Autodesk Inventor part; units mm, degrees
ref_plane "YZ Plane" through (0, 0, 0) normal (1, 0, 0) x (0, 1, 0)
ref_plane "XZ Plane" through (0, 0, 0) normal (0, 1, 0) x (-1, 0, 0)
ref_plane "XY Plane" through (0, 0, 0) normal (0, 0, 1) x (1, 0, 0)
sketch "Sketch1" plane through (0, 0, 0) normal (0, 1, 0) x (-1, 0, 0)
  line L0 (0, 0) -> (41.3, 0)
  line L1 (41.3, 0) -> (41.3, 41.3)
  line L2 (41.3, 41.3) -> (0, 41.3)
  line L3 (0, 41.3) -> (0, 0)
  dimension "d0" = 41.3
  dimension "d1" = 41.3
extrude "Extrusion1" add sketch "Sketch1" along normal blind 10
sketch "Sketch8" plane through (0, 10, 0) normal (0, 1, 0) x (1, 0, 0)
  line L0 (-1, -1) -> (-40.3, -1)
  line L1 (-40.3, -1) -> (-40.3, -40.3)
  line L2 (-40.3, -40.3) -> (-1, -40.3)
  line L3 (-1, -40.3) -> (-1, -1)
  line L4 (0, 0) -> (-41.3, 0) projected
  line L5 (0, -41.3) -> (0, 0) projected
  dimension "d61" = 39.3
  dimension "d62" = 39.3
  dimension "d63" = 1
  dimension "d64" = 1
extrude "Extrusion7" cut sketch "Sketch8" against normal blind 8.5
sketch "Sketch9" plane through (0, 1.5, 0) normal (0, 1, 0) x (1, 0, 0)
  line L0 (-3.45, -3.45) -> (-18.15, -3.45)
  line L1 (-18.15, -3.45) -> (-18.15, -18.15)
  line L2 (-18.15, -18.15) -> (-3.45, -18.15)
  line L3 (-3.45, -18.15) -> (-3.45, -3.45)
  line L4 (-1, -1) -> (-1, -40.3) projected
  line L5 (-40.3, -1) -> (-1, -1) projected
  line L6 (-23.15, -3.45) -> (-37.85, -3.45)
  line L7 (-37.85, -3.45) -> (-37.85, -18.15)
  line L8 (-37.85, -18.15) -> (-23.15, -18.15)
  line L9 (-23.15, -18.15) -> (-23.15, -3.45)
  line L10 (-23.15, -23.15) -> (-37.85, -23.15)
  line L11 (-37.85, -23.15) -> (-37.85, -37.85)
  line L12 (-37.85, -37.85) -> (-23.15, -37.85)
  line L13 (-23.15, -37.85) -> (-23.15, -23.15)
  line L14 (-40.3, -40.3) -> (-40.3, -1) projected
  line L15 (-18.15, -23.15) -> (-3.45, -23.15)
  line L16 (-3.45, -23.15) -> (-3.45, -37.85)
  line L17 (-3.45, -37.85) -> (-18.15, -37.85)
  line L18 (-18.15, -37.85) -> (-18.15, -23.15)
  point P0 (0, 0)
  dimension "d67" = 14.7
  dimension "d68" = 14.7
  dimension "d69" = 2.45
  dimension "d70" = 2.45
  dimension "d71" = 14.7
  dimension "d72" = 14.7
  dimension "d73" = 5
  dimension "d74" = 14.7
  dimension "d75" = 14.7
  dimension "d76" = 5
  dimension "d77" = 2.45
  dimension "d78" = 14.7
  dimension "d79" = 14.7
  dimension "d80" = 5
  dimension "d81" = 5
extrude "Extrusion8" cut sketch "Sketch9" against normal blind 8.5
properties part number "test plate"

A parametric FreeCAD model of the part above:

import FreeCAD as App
import Part
import Sketcher

V = App.Vector
Q = App.Units.Quantity

doc = App.newDocument("Part")
body = doc.addObject("PartDesign::Body", "Body")

# Sketch on XZ plane
sketch1 = body.newObject("Sketcher::SketchObject", "Sketch")
sketch1.AttachmentSupport = (doc.getObject("XZ_Plane"), [""])
sketch1.MapMode = "FlatFace"
sketch1.addGeometry([
    Part.LineSegment(V(0, 41, 0), V(0, 0, 0)),
    Part.LineSegment(V(0, 0, 0), V(-41, 0, 0)),
    Part.LineSegment(V(-41, 0, 0), V(-41, 41, 0)),
    Part.LineSegment(V(-41, 41, 0), V(0, 41, 0)),
], False)
sketch1.addConstraint([
    Sketcher.Constraint("Coincident", 0, 2, 1, 1),
    Sketcher.Constraint("Coincident", 1, 2, 2, 1),
    Sketcher.Constraint("Coincident", 2, 2, 3, 1),
    Sketcher.Constraint("Coincident", 3, 2, 0, 1),
    Sketcher.Constraint("Vertical", 0),
    Sketcher.Constraint("Horizontal", 1),
    Sketcher.Constraint("Vertical", 2),
    Sketcher.Constraint("Horizontal", 3),
    Sketcher.Constraint("Coincident", 0, 2, -1, 1),
    Sketcher.Constraint("Equal", 3, 0),
    Sketcher.Constraint("DistanceX", 1, 2, 1, 1, Q("41.3 mm")),
])
pad1 = body.newObject("PartDesign::Pad", "Pad")
pad1.Profile = sketch1
pad1.Length = 10
pad1.Reversed = True

# Sketch on XZ plane
sketch2 = body.newObject("Sketcher::SketchObject", "Sketch001")
sketch2.AttachmentSupport = (doc.getObject("XZ_Plane"), [""])
sketch2.MapMode = "FlatFace"
sketch2.AttachmentOffset = App.Placement(V(0, 0, -10), App.Rotation())
sketch2.addGeometry([
    Part.LineSegment(V(-1, 40, 0), V(-1, 1, 0)),
    Part.LineSegment(V(-1, 1, 0), V(-40, 1, 0)),
    Part.LineSegment(V(-40, 1, 0), V(-40, 40, 0)),
    Part.LineSegment(V(-40, 40, 0), V(-1, 40, 0)),
], False)
sketch2.addConstraint([
    Sketcher.Constraint("Coincident", 0, 2, 1, 1),
    Sketcher.Constraint("Coincident", 1, 2, 2, 1),
    Sketcher.Constraint("Coincident", 2, 2, 3, 1),
    Sketcher.Constraint("Coincident", 3, 2, 0, 1),
    Sketcher.Constraint("Vertical", 0),
    Sketcher.Constraint("Horizontal", 1),
    Sketcher.Constraint("Vertical", 2),
    Sketcher.Constraint("Horizontal", 3),
    Sketcher.Constraint("Equal", 3, 0),
    Sketcher.Constraint("DistanceX", 1, 2, 1, 1, Q("39.3 mm")),
    Sketcher.Constraint("DistanceX", 0, 2, -1, 1, Q("1 mm")),
    Sketcher.Constraint("DistanceY", -1, 1, 0, 2, Q("1 mm")),
])
pocket1 = body.newObject("PartDesign::Pocket", "Pocket")
pocket1.Profile = sketch2
pocket1.Length = 8.5
pocket1.Reversed = True

# Sketch on XZ plane
sketch3 = body.newObject("Sketcher::SketchObject", "Sketch002")
sketch3.AttachmentSupport = (doc.getObject("XZ_Plane"), [""])
sketch3.MapMode = "FlatFace"
sketch3.AttachmentOffset = App.Placement(V(0, 0, -1.5), App.Rotation())
sketch3.addGeometry([
    Part.LineSegment(V(-3, 18, 0), V(-3, 3, 0)),  # 0
    Part.LineSegment(V(-3, 3, 0), V(-18, 3, 0)),  # 1
    Part.LineSegment(V(-18, 3, 0), V(-18, 18, 0)),  # 2
    Part.LineSegment(V(-18, 18, 0), V(-3, 18, 0)),  # 3
    Part.LineSegment(V(-23, 18, 0), V(-23, 3, 0)),  # 4
    Part.LineSegment(V(-23, 3, 0), V(-38, 3, 0)),  # 5
    Part.LineSegment(V(-38, 3, 0), V(-38, 18, 0)),  # 6
    Part.LineSegment(V(-38, 18, 0), V(-23, 18, 0)),  # 7
    Part.LineSegment(V(-23, 38, 0), V(-23, 23, 0)),  # 8
    Part.LineSegment(V(-23, 23, 0), V(-38, 23, 0)),  # 9
    Part.LineSegment(V(-38, 23, 0), V(-38, 38, 0)),  # 10
    Part.LineSegment(V(-38, 38, 0), V(-23, 38, 0)),  # 11
    Part.LineSegment(V(-3, 23, 0), V(-18, 23, 0)),  # 12
    Part.LineSegment(V(-18, 23, 0), V(-18, 38, 0)),  # 13
    Part.LineSegment(V(-18, 38, 0), V(-3, 38, 0)),  # 14
    Part.LineSegment(V(-3, 38, 0), V(-3, 23, 0)),  # 15
], False)
sketch3.addConstraint([
    Sketcher.Constraint("Coincident", 0, 2, 1, 1),
    Sketcher.Constraint("Coincident", 1, 2, 2, 1),
    Sketcher.Constraint("Coincident", 2, 2, 3, 1),
    Sketcher.Constraint("Coincident", 3, 2, 0, 1),
    Sketcher.Constraint("Coincident", 4, 2, 5, 1),
    Sketcher.Constraint("Coincident", 5, 2, 6, 1),
    Sketcher.Constraint("Coincident", 6, 2, 7, 1),
    Sketcher.Constraint("Coincident", 7, 2, 4, 1),
    Sketcher.Constraint("Coincident", 8, 2, 9, 1),
    Sketcher.Constraint("Coincident", 9, 2, 10, 1),
    Sketcher.Constraint("Coincident", 10, 2, 11, 1),
    Sketcher.Constraint("Coincident", 11, 2, 8, 1),
    Sketcher.Constraint("Coincident", 12, 2, 13, 1),
    Sketcher.Constraint("Coincident", 13, 2, 14, 1),
    Sketcher.Constraint("Coincident", 14, 2, 15, 1),
    Sketcher.Constraint("Coincident", 15, 2, 12, 1),
    Sketcher.Constraint("Vertical", 0),
    Sketcher.Constraint("Horizontal", 1),
    Sketcher.Constraint("Vertical", 2),
    Sketcher.Constraint("Horizontal", 3),
    Sketcher.Constraint("Vertical", 4),
    Sketcher.Constraint("Horizontal", 5),
    Sketcher.Constraint("Vertical", 6),
    Sketcher.Constraint("Horizontal", 7),
    Sketcher.Constraint("Vertical", 8),
    Sketcher.Constraint("Horizontal", 9),
    Sketcher.Constraint("Vertical", 10),
    Sketcher.Constraint("Horizontal", 11),
    Sketcher.Constraint("Horizontal", 12),
    Sketcher.Constraint("Vertical", 13),
    Sketcher.Constraint("Horizontal", 14),
    Sketcher.Constraint("Vertical", 15),
    Sketcher.Constraint("Horizontal", 1, 2, 4, 2),
    Sketcher.Constraint("Horizontal", 3, 2, 6, 2),
    Sketcher.Constraint("Horizontal", 9, 2, 12, 2),
    Sketcher.Constraint("Horizontal", 11, 2, 13, 2),
    Sketcher.Constraint("Vertical", 7, 2, 8, 2),
    Sketcher.Constraint("Vertical", 6, 2, 9, 2),
    Sketcher.Constraint("Vertical", 2, 2, 12, 2),
    Sketcher.Constraint("Vertical", 3, 2, 14, 2),
    Sketcher.Constraint("Equal", 3, 5),
    Sketcher.Constraint("Equal", 14, 0),
    Sketcher.Constraint("Equal", 6, 8),
    Sketcher.Constraint("DistanceX", 1, 2, 1, 1, Q("14.7 mm")),
    Sketcher.Constraint("DistanceX", 4, 2, 1, 2, Q("5 mm")),
    Sketcher.Constraint("DistanceY", 7, 2, 8, 2, Q("5 mm")),
    Sketcher.Constraint("DistanceX", 0, 2, -1, 1, Q("3.45 mm")),
    Sketcher.Constraint("DistanceY", -1, 1, 0, 2, Q("3.45 mm")),
])
pocket2 = body.newObject("PartDesign::Pocket", "Pocket001")
pocket2.Profile = sketch3
pocket2.Length = 8.5
pocket2.Reversed = True

doc.recompute()
